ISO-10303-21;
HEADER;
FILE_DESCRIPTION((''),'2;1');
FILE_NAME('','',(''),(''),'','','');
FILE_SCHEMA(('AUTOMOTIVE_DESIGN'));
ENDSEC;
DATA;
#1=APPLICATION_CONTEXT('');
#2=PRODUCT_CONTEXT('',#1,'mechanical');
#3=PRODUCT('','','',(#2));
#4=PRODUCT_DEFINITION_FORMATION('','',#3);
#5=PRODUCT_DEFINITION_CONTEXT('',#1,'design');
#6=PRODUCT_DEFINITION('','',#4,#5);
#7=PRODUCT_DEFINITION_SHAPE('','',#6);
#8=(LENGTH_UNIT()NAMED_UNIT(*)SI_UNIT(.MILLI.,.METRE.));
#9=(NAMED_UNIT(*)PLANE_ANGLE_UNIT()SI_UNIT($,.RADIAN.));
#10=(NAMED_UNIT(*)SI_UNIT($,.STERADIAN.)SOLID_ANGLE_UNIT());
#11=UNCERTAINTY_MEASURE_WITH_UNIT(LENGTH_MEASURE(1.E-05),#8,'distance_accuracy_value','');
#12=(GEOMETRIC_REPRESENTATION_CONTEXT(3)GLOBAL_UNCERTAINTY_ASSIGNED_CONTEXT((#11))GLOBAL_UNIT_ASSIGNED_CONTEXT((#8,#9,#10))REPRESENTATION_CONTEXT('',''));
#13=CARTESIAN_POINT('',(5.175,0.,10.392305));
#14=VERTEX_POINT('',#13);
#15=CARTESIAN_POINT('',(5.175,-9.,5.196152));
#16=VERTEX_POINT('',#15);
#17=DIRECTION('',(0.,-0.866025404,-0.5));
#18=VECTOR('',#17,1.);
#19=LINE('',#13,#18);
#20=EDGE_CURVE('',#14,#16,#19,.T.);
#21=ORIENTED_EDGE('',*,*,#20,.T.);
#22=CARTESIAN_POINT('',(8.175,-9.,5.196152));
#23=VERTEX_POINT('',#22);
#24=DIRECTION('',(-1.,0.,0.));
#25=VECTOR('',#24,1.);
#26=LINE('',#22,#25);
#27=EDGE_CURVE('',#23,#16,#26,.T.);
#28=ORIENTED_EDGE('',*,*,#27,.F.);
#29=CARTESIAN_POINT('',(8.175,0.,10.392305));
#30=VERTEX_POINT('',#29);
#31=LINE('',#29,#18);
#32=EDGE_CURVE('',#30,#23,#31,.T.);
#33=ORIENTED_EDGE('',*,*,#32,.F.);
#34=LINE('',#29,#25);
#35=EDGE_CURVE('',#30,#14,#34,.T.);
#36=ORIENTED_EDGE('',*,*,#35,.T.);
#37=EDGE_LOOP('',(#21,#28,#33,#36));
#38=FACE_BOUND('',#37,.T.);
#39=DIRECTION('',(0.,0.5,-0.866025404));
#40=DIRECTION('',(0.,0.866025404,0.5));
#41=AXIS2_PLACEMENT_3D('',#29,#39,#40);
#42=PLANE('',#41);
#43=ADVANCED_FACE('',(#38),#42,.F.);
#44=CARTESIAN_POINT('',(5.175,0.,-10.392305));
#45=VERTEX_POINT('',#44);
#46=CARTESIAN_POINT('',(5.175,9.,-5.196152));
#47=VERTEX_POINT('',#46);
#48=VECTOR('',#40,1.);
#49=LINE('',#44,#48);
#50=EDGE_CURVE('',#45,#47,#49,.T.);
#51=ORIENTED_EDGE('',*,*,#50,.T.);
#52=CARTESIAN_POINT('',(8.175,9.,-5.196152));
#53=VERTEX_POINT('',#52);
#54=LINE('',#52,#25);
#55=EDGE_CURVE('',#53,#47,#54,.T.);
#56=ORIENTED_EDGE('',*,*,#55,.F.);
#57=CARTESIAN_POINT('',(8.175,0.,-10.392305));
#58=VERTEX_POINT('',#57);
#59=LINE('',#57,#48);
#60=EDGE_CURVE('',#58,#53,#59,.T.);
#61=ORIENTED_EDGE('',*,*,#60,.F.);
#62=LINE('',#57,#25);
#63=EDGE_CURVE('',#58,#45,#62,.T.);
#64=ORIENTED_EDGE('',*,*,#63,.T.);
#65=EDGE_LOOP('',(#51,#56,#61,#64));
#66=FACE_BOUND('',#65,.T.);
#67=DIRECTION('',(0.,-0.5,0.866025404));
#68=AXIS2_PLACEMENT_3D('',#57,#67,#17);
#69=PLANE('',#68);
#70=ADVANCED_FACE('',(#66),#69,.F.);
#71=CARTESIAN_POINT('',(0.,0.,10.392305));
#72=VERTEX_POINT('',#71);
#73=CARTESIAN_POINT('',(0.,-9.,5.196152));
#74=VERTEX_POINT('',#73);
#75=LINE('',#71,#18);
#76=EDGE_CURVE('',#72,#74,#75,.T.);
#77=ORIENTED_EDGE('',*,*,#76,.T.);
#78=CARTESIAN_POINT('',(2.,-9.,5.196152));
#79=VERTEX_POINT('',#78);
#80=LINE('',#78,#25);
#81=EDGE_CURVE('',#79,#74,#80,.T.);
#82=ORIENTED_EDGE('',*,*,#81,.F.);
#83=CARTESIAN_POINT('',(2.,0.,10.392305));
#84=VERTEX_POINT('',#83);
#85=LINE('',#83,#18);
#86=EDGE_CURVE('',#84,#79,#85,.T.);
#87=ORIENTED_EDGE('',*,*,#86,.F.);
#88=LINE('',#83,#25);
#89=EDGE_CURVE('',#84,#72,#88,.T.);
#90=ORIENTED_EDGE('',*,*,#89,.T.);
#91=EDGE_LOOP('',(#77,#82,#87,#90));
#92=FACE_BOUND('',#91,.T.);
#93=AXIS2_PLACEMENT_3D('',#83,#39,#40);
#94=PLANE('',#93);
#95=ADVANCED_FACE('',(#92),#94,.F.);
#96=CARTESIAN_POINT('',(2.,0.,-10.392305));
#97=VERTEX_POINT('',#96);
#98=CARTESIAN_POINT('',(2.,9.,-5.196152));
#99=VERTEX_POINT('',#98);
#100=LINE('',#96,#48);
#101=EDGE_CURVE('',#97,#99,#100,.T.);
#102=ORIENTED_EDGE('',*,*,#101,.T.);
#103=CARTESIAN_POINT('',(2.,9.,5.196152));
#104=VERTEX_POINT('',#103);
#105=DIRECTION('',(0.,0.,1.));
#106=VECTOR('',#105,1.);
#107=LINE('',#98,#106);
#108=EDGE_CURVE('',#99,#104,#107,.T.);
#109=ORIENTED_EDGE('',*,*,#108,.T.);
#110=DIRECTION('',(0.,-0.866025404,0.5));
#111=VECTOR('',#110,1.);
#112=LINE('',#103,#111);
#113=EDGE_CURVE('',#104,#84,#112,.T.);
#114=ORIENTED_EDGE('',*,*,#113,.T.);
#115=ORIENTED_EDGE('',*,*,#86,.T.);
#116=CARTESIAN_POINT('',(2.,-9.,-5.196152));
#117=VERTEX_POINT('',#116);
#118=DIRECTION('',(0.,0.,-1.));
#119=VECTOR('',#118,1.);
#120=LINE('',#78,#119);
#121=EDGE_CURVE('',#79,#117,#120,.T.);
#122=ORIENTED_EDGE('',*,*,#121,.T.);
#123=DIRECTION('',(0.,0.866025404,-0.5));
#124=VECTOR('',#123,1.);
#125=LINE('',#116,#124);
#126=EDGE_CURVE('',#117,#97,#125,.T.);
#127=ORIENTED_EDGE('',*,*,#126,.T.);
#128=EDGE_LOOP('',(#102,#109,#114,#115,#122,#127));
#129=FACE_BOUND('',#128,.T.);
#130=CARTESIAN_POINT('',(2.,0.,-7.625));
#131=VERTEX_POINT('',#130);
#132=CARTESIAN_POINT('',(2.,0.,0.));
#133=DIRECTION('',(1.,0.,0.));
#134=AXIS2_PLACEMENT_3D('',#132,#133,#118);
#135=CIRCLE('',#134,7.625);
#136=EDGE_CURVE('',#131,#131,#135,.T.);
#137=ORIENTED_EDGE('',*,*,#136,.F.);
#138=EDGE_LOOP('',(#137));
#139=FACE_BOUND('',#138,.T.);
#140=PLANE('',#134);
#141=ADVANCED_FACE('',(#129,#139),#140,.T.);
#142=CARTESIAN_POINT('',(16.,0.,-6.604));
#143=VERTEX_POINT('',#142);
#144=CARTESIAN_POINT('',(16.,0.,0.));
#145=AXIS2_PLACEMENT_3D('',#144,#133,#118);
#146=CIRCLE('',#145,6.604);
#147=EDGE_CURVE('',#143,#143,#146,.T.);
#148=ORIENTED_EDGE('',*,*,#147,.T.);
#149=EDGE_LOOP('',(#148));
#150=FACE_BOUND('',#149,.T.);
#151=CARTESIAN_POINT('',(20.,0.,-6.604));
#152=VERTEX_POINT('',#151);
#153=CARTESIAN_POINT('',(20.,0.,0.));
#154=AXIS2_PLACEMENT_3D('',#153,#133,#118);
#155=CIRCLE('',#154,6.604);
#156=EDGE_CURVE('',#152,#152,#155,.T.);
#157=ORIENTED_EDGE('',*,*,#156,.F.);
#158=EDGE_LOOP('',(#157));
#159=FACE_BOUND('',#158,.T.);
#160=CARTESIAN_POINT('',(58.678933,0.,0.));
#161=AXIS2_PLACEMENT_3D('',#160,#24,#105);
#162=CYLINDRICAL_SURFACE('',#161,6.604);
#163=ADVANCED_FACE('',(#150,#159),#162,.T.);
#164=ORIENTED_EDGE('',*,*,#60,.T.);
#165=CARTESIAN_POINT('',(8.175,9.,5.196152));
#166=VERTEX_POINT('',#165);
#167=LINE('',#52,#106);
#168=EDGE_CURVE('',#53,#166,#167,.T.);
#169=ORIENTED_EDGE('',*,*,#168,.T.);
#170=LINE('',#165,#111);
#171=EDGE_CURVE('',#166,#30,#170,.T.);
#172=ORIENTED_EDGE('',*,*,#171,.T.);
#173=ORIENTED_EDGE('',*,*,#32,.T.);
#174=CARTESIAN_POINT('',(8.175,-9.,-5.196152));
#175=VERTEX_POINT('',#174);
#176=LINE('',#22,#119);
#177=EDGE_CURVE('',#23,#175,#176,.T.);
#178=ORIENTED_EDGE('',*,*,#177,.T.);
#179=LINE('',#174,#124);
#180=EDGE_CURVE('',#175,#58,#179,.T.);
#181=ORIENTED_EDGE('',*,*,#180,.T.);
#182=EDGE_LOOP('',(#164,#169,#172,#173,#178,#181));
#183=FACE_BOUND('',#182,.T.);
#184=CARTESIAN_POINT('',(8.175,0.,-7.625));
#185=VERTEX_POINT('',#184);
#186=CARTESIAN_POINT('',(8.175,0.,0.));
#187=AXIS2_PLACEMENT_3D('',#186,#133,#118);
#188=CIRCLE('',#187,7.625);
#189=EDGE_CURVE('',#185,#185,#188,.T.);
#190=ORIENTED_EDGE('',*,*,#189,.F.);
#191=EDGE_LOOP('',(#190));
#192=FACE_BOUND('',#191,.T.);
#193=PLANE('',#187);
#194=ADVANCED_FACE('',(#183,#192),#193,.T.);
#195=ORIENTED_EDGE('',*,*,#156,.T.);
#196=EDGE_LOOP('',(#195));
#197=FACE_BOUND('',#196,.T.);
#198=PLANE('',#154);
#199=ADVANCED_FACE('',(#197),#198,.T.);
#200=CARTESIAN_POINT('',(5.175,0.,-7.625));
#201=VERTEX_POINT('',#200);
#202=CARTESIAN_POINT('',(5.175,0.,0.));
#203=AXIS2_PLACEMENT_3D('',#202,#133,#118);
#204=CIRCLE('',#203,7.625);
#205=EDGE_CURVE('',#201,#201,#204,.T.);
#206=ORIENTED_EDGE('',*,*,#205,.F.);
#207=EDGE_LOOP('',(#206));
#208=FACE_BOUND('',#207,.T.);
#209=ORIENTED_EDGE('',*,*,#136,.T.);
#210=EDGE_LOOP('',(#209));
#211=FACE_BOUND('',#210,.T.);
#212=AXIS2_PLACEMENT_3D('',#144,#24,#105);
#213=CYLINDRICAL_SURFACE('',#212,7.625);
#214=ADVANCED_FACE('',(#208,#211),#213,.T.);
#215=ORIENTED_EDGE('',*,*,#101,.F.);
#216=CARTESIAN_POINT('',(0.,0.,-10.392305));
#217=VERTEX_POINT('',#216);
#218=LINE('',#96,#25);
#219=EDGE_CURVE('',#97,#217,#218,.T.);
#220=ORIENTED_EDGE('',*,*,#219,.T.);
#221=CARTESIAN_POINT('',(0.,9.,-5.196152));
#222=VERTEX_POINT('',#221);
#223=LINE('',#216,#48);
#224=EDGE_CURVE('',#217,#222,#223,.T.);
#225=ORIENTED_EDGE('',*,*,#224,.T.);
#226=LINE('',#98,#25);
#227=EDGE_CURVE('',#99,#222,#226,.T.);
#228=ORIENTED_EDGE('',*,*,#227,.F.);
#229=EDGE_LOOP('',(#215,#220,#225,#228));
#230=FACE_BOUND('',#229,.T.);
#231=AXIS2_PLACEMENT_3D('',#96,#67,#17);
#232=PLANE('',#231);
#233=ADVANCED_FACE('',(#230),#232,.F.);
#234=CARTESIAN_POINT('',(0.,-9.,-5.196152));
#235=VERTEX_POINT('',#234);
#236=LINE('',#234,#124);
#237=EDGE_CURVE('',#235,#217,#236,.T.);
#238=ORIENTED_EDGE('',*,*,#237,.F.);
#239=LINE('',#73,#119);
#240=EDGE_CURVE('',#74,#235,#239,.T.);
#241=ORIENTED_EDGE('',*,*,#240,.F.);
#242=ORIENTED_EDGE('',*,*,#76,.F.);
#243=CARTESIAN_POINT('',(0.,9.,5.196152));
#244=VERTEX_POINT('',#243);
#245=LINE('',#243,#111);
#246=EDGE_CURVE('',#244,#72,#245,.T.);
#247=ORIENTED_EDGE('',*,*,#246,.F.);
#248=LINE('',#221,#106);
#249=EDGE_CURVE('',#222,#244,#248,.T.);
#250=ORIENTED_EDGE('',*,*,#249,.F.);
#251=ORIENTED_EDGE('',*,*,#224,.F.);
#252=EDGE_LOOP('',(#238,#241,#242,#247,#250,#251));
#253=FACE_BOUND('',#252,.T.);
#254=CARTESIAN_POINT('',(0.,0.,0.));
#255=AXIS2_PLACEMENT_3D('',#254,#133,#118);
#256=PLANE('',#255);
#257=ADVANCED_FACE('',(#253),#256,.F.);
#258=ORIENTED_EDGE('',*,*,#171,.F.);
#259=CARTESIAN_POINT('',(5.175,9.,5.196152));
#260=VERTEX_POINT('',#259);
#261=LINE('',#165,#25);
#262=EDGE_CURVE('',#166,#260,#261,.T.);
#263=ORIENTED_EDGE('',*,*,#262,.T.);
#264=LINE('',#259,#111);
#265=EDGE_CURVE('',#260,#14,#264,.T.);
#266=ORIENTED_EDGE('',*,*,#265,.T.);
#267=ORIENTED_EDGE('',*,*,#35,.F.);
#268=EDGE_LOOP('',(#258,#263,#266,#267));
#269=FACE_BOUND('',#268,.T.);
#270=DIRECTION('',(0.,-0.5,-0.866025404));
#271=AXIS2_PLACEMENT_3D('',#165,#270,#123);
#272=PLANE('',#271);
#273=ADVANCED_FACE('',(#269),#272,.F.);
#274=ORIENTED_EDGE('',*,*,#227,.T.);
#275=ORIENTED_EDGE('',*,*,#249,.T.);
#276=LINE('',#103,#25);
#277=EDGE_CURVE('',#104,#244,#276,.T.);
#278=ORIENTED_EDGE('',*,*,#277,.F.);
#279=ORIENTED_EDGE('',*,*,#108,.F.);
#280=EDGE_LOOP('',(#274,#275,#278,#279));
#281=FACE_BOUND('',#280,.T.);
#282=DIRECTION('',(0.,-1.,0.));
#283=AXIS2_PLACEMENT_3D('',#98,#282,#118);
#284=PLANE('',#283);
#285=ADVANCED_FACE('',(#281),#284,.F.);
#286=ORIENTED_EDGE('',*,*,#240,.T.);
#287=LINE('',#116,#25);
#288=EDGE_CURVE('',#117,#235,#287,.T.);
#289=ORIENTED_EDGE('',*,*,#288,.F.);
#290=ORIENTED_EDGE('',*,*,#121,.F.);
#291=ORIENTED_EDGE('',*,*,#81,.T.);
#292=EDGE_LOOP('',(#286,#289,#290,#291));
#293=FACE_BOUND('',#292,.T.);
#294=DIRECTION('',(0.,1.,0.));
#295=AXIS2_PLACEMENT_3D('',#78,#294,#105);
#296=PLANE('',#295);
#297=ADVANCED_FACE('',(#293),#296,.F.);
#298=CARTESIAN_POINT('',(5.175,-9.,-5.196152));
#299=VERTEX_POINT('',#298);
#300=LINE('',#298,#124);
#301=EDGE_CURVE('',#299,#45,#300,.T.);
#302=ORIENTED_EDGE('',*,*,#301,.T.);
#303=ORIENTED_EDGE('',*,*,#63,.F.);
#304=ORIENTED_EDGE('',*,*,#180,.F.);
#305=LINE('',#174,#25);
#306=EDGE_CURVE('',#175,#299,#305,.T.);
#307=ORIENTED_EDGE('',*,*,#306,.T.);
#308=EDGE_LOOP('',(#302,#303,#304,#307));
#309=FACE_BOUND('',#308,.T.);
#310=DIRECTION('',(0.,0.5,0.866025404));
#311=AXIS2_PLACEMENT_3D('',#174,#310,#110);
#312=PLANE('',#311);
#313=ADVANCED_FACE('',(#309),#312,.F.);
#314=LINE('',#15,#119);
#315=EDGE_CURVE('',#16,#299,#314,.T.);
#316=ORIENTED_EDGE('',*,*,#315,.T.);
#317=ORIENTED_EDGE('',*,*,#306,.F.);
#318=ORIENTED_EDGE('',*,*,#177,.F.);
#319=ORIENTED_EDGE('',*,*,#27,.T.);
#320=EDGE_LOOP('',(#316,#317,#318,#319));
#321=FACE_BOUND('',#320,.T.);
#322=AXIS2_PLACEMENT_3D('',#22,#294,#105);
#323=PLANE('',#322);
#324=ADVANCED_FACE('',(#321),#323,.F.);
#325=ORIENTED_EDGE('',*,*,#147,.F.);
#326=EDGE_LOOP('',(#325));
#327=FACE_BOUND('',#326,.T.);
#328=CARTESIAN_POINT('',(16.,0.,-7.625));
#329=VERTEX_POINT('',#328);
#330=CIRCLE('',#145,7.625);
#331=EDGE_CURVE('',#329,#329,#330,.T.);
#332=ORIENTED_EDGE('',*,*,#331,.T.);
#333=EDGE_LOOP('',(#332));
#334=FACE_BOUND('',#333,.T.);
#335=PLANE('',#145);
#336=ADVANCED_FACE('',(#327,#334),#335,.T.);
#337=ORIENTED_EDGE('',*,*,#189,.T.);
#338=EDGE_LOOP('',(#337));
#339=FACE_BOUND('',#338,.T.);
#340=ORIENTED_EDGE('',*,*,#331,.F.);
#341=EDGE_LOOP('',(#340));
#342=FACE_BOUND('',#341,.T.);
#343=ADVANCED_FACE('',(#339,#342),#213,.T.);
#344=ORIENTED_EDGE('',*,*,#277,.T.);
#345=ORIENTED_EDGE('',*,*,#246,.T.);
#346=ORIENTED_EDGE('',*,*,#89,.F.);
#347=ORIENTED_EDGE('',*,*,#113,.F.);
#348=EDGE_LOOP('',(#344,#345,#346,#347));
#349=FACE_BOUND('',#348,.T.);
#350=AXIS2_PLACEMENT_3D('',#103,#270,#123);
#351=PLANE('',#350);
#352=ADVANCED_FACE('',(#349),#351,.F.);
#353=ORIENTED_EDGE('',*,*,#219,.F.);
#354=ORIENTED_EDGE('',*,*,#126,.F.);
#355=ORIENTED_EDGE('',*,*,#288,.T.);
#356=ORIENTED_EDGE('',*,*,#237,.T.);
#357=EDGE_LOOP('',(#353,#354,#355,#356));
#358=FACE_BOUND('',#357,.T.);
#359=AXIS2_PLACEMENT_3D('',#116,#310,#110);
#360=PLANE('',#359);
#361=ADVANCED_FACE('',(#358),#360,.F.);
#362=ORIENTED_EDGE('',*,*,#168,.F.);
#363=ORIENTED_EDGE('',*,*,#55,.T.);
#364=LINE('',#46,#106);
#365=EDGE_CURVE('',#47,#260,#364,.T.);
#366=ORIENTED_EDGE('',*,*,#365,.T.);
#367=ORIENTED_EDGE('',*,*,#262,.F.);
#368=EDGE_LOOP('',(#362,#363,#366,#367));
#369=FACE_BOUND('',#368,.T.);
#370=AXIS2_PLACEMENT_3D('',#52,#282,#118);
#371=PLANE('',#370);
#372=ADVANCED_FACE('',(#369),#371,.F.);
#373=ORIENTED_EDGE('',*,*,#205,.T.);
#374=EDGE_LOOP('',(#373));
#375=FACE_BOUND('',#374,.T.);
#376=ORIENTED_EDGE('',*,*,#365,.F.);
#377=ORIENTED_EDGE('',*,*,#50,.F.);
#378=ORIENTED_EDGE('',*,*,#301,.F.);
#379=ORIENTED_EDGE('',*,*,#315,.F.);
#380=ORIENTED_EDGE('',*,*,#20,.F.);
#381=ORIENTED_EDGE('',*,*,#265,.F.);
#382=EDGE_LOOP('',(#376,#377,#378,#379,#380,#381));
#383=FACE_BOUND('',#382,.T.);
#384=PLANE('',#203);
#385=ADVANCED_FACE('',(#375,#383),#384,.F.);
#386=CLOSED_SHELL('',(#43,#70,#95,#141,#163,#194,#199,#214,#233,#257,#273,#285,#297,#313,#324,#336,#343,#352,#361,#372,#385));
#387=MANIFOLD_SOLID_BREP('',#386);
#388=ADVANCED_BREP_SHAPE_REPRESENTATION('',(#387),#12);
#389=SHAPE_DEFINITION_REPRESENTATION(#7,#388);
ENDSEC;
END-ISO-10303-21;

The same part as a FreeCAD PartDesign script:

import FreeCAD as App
import Part
import Sketcher
from FreeCAD import Vector
Q = App.Units.Quantity


def add_polygon(sketch, points):
    """Adds a closed chain of lines whose ends are joined by coincident constraints."""
    first, n = sketch.GeometryCount, len(points)
    for a, b in zip(points, points[1:] + points[:1]):
        sketch.addGeometry(Part.LineSegment(App.Vector(*a, 0), App.Vector(*b, 0)), False)
    for i in range(n):
        sketch.addConstraint(Sketcher.Constraint("Coincident", first + i, 2, first + (i + 1) % n, 1))

doc = App.newDocument("Part")
body = doc.addObject("PartDesign::Body", "Body")

sketch1 = body.newObject("Sketcher::SketchObject", "Sketch")
sketch1.AttachmentSupport = (doc.getObject("YZ_Plane"), [""])
sketch1.MapMode = "FlatFace"
add_polygon(sketch1, [(9, -5), (9, 5), (0, 10), (-9, 5), (-9, -5), (0, -10)])
sketch1.addConstraint(Sketcher.Constraint("Vertical", 0))
sketch1.addConstraint(Sketcher.Constraint("Vertical", 3))
sketch1.addConstraint(Sketcher.Constraint("Symmetric", 0, 2, 3, 2, -1, 1))
sketch1.addConstraint(Sketcher.Constraint("Symmetric", 1, 2, 4, 2, -1, 1))
sketch1.addConstraint(Sketcher.Constraint("PointOnObject", 1, 2, -2))
sketch1.addConstraint(Sketcher.Constraint("Parallel", 2, 5))
sketch1.addConstraint(Sketcher.Constraint("Horizontal", 0, 2, 2, 2))
sketch1.addConstraint(Sketcher.Constraint("Angle", 1, Q("150 deg")))
sketch1.addConstraint(Sketcher.Constraint("DistanceX", -1, 1, 0, 2, Q("9 mm")))
sketch1.addConstraint(Sketcher.Constraint("DistanceY", 0, 1, 0, 2, Q("10.392305 mm")))
pad1 = body.newObject("PartDesign::Pad", "Pad")
pad1.Profile = sketch1
pad1.Length = 2

sketch2 = body.newObject("Sketcher::SketchObject", "Sketch001")
sketch2.AttachmentSupport = (doc.getObject("YZ_Plane"), [""])
sketch2.MapMode = "FlatFace"
sketch2.AttachmentOffset = App.Placement(Vector(0, 0, 2), App.Rotation())
sketch2.addGeometry(Part.Circle(Vector(0, 0, 0), Vector(0, 0, 1), 8), False)
sketch2.addConstraint(Sketcher.Constraint("Coincident", 0, 3, -1, 1))
sketch2.addConstraint(Sketcher.Constraint("Diameter", 0, Q("15.25 mm")))
pad2 = body.newObject("PartDesign::Pad", "Pad001")
pad2.Profile = sketch2
pad2.Length = 14

sketch3 = body.newObject("Sketcher::SketchObject", "Sketch002")
sketch3.AttachmentSupport = (doc.getObject("YZ_Plane"), [""])
sketch3.MapMode = "FlatFace"
sketch3.AttachmentOffset = App.Placement(Vector(0, 0, 16), App.Rotation())
sketch3.addGeometry(Part.Circle(Vector(0, 0, 0), Vector(0, 0, 1), 7), False)
sketch3.addConstraint(Sketcher.Constraint("Coincident", 0, 3, -1, 1))
sketch3.addConstraint(Sketcher.Constraint("Diameter", 0, Q("13.208 mm")))
pad3 = body.newObject("PartDesign::Pad", "Pad002")
pad3.Profile = sketch3
pad3.Length = 4

sketch4 = body.newObject("Sketcher::SketchObject", "Sketch003")
sketch4.AttachmentSupport = (doc.getObject("YZ_Plane"), [""])
sketch4.MapMode = "FlatFace"
sketch4.AttachmentOffset = App.Placement(Vector(0, 0, 5.175), App.Rotation())
add_polygon(sketch4, [(0, -10), (9, -5), (9, 5), (0, 10), (-9, 5), (-9, -5)])
sketch4.addConstraint(Sketcher.Constraint("Vertical", 1))
sketch4.addConstraint(Sketcher.Constraint("Vertical", 4))
sketch4.addConstraint(Sketcher.Constraint("Symmetric", 0, 2, 3, 2, -1, 1))
sketch4.addConstraint(Sketcher.Constraint("Symmetric", 2, 2, 5, 2, -1, 1))
sketch4.addConstraint(Sketcher.Constraint("PointOnObject", 2, 2, -2))
sketch4.addConstraint(Sketcher.Constraint("Parallel", 2, 5))
sketch4.addConstraint(Sketcher.Constraint("Horizontal", 1, 2, 3, 2))
sketch4.addConstraint(Sketcher.Constraint("Angle", 0, Q("30 deg")))
sketch4.addConstraint(Sketcher.Constraint("DistanceX", -1, 1, 0, 2, Q("9 mm")))
sketch4.addConstraint(Sketcher.Constraint("DistanceY", 1, 1, 1, 2, Q("10.392305 mm")))
pad4 = body.newObject("PartDesign::Pad", "Pad003")
pad4.Profile = sketch4
pad4.Length = 3

doc.recompute()
